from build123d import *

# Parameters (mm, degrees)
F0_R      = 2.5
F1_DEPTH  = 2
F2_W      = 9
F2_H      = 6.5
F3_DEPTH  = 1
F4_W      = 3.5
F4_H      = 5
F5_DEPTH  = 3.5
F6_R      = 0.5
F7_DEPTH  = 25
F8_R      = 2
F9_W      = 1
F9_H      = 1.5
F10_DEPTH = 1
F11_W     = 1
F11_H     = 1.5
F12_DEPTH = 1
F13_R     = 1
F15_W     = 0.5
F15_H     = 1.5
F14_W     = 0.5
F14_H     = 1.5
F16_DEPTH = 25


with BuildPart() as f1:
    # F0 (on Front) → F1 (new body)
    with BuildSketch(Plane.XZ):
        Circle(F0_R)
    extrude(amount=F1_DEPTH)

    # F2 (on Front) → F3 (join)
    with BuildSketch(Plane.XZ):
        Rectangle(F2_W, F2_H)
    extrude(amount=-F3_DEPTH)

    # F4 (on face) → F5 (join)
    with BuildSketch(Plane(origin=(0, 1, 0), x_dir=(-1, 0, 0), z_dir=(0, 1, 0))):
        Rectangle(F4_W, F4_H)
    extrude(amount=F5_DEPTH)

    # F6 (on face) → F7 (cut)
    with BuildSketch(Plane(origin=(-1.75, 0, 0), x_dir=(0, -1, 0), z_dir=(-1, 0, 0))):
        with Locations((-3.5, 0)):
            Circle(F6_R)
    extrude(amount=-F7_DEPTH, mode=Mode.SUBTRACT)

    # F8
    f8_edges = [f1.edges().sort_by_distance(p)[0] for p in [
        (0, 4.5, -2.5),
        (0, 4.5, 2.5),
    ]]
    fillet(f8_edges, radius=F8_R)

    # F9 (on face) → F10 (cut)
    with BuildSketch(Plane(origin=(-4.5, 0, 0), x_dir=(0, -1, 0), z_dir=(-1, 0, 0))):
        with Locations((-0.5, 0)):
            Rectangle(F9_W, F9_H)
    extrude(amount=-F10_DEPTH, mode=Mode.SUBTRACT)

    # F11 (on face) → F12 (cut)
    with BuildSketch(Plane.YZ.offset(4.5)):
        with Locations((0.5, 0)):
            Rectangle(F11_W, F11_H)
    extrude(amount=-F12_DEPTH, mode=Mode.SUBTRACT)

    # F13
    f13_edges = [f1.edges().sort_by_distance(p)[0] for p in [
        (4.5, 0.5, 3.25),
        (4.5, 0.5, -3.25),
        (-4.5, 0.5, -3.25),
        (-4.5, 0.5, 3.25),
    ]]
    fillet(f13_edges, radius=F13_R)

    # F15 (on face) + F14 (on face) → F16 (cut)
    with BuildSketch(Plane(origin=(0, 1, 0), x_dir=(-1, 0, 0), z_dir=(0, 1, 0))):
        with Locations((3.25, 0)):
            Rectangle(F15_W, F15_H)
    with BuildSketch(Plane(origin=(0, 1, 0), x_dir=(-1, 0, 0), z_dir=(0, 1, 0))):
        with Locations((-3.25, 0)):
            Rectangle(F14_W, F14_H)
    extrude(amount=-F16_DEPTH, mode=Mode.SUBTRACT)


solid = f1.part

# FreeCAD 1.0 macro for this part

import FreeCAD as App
import Part
import Sketcher

V = App.Vector
Q = App.Units.Quantity


def edges_at(feature, points):
    """Names of the edges that pass closest to the given points."""
    edges = feature.Shape.Edges
    near = lambda p: min(range(len(edges)), key=lambda i: edges[i].distToShape(Part.Vertex(*p))[0])
    return sorted({f"Edge{near(p) + 1}" for p in points})


def add_polygon(sketch, points):
    """Adds a closed chain of lines whose ends are joined by coincident constraints."""
    first, n = sketch.GeometryCount, len(points)
    for a, b in zip(points, points[1:] + points[:1]):
        sketch.addGeometry(Part.LineSegment(App.Vector(*a, 0), App.Vector(*b, 0)), False)
    for i in range(n):
        sketch.addConstraint(Sketcher.Constraint("Coincident", first + i, 2, first + (i + 1) % n, 1))

doc = App.newDocument("Part")
body = doc.addObject("PartDesign::Body", "Body")

sketch1 = doc.addObject("Sketcher::SketchObject", "Sketch")
body.addObject(sketch1)
sketch1.AttachmentSupport = (doc.XZ_Plane, [""])
sketch1.MapMode = "FlatFace"
sketch1.addGeometry(Part.Circle(V(0, 0, 0), V(0, 0, 1), 2.5), False)
sketch1.addConstraint([
    Sketcher.Constraint("Coincident", 0, 3, -1, 1),
    Sketcher.Constraint("Diameter", 0, Q("5 mm")),
])
pad1 = doc.addObject("PartDesign::Pad", "Pad")
body.addObject(pad1)
pad1.Profile = sketch1
pad1.Length = 2

sketch2 = doc.addObject("Sketcher::SketchObject", "Sketch001")
body.addObject(sketch2)
sketch2.AttachmentSupport = (doc.XZ_Plane, [""])
sketch2.MapMode = "FlatFace"
add_polygon(sketch2, [(-4, 3), (-4, -3), (4, -3), (4, 3)])
sketch2.addConstraint([
    Sketcher.Constraint("Vertical", 0),
    Sketcher.Constraint("Horizontal", 1),
    Sketcher.Constraint("Vertical", 2),
    Sketcher.Constraint("Horizontal", 3),
    Sketcher.Constraint("Symmetric", 0, 2, 2, 2, -1, 1),
    Sketcher.Constraint("DistanceX", 1, 1, 1, 2, Q("9 mm")),
    Sketcher.Constraint("DistanceY", 0, 2, 0, 1, Q("6.5 mm")),
])
pad2 = doc.addObject("PartDesign::Pad", "Pad001")
body.addObject(pad2)
pad2.Profile = sketch2
pad2.Length = 1
pad2.Reversed = True

sketch3 = doc.addObject("Sketcher::SketchObject", "Sketch002")
body.addObject(sketch3)
sketch3.AttachmentSupport = (doc.XZ_Plane, [""])
sketch3.MapMode = "FlatFace"
sketch3.AttachmentOffset = App.Placement(V(0, 0, -1), App.Rotation())
add_polygon(sketch3, [(1.8, 2.5), (1.8, -2.5), (-1.8, -2.5), (-1.8, 2.5)])
sketch3.addConstraint([
    Sketcher.Constraint("Vertical", 0),
    Sketcher.Constraint("Horizontal", 1),
    Sketcher.Constraint("Vertical", 2),
    Sketcher.Constraint("Horizontal", 3),
    Sketcher.Constraint("Symmetric", 0, 2, 2, 2, -1, 1),
    Sketcher.Constraint("DistanceY", 0, 2, 0, 1, Q("5 mm")),
    Sketcher.Constraint("DistanceX", 1, 2, 1, 1, Q("3.5 mm")),
])
pad3 = doc.addObject("PartDesign::Pad", "Pad002")
body.addObject(pad3)
pad3.Profile = sketch3
pad3.Length = 3.5
pad3.Reversed = True

sketch4 = doc.addObject("Sketcher::SketchObject", "Sketch003")
body.addObject(sketch4)
sketch4.AttachmentSupport = (doc.YZ_Plane, [""])
sketch4.MapMode = "FlatFace"
sketch4.AttachmentOffset = App.Placement(V(0, 0, -1.75), App.Rotation())
sketch4.addGeometry(Part.Circle(V(3.5, 0, 0), V(0, 0, 1), 0.5), False)
sketch4.addConstraint([
    Sketcher.Constraint("PointOnObject", 0, 3, -1),
    Sketcher.Constraint("Diameter", 0, Q("1 mm")),
    Sketcher.Constraint("DistanceX", -1, 1, 0, 3, Q("3.5 mm")),
])
pocket1 = doc.addObject("PartDesign::Pocket", "Pocket")
body.addObject(pocket1)
pocket1.Profile = sketch4
pocket1.Length = 25
pocket1.Reversed = True
doc.recompute()

fillet = doc.addObject("PartDesign::Fillet", "Fillet")
body.addObject(fillet)
fillet.Base = (pocket1, edges_at(pocket1, [(0, 4.5, -2.5), (0, 4.5, 2.5)]))
fillet.Radius = 2

sketch5 = doc.addObject("Sketcher::SketchObject", "Sketch004")
body.addObject(sketch5)
sketch5.AttachmentSupport = (doc.YZ_Plane, [""])
sketch5.MapMode = "FlatFace"
sketch5.AttachmentOffset = App.Placement(V(0, 0, -4.5), App.Rotation())
add_polygon(sketch5, [(1, 0.8), (1, -0.8), (0, -0.8), (0, 0.8)])
sketch5.addConstraint([
    Sketcher.Constraint("Vertical", 0),
    Sketcher.Constraint("Horizontal", 1),
    Sketcher.Constraint("Vertical", 2),
    Sketcher.Constraint("Horizontal", 3),
    Sketcher.Constraint("Symmetric", 1, 2, 2, 2, -1, 1),
    Sketcher.Constraint("DistanceX", 1, 2, 1, 1, Q("1 mm")),
    Sketcher.Constraint("DistanceY", 0, 2, 0, 1, Q("1.5 mm")),
])
pocket2 = doc.addObject("PartDesign::Pocket", "Pocket001")
body.addObject(pocket2)
pocket2.Profile = sketch5
pocket2.Length = 1
pocket2.Reversed = True

sketch6 = doc.addObject("Sketcher::SketchObject", "Sketch005")
body.addObject(sketch6)
sketch6.AttachmentSupport = (doc.YZ_Plane, [""])
sketch6.MapMode = "FlatFace"
sketch6.AttachmentOffset = App.Placement(V(0, 0, 4.5), App.Rotation())
add_polygon(sketch6, [(0, 0.8), (0, -0.8), (1, -0.8), (1, 0.8)])
sketch6.addConstraint([
    Sketcher.Constraint("Vertical", 0),
    Sketcher.Constraint("Horizontal", 1),
    Sketcher.Constraint("Vertical", 2),
    Sketcher.Constraint("Horizontal", 3),
    Sketcher.Constraint("Symmetric", 0, 2, 3, 2, -1, 1),
    Sketcher.Constraint("DistanceX", 1, 1, 1, 2, Q("1 mm")),
    Sketcher.Constraint("DistanceY", 0, 2, 0, 1, Q("1.5 mm")),
])
pocket3 = doc.addObject("PartDesign::Pocket", "Pocket002")
body.addObject(pocket3)
pocket3.Profile = sketch6
pocket3.Length = 1
doc.recompute()

fillet2 = doc.addObject("PartDesign::Fillet", "Fillet001")
body.addObject(fillet2)
fillet2.Base = (pocket3, edges_at(pocket3, [
    (4.5, 0.5, 3.25),
    (4.5, 0.5, -3.25),
    (-4.5, 0.5, -3.25),
    (-4.5, 0.5, 3.25),
]))
fillet2.Radius = 1

sketch7 = doc.addObject("Sketcher::SketchObject", "Sketch006")
body.addObject(sketch7)
sketch7.AttachmentSupport = (doc.XZ_Plane, [""])
sketch7.MapMode = "FlatFace"
sketch7.AttachmentOffset = App.Placement(V(0, 0, -1), App.Rotation())
add_polygon(sketch7, [(-3, 0.8), (-3, -0.8), (-3.5, -0.8), (-3.5, 0.8)])
add_polygon(sketch7, [(3.5, 0.8), (3.5, -0.8), (3, -0.8), (3, 0.8)])
sketch7.addConstraint([
    Sketcher.Constraint("Vertical", 0),
    Sketcher.Constraint("Horizontal", 1),
    Sketcher.Constraint("Vertical", 2),
    Sketcher.Constraint("Horizontal", 3),
    Sketcher.Constraint("Vertical", 4),
    Sketcher.Constraint("Horizontal", 5),
    Sketcher.Constraint("Vertical", 6),
    Sketcher.Constraint("Horizontal", 7),
    Sketcher.Constraint("Symmetric", 2, 2, 4, 2, -1, 1),
    Sketcher.Constraint("Symmetric", 0, 2, 6, 2, -1, 1),
    Sketcher.Constraint("Horizontal", 1, 2, 4, 2),
    Sketcher.Constraint("DistanceX", 1, 2, 1, 1, Q("0.5 mm")),
    Sketcher.Constraint("DistanceY", 0, 2, 0, 1, Q("1.5 mm")),
    Sketcher.Constraint("DistanceX", 0, 2, -1, 1, Q("3 mm")),
])
pocket4 = doc.addObject("PartDesign::Pocket", "Pocket003")
body.addObject(pocket4)
pocket4.Profile = sketch7
pocket4.Length = 25
pocket4.Reversed = True

doc.recompute()
